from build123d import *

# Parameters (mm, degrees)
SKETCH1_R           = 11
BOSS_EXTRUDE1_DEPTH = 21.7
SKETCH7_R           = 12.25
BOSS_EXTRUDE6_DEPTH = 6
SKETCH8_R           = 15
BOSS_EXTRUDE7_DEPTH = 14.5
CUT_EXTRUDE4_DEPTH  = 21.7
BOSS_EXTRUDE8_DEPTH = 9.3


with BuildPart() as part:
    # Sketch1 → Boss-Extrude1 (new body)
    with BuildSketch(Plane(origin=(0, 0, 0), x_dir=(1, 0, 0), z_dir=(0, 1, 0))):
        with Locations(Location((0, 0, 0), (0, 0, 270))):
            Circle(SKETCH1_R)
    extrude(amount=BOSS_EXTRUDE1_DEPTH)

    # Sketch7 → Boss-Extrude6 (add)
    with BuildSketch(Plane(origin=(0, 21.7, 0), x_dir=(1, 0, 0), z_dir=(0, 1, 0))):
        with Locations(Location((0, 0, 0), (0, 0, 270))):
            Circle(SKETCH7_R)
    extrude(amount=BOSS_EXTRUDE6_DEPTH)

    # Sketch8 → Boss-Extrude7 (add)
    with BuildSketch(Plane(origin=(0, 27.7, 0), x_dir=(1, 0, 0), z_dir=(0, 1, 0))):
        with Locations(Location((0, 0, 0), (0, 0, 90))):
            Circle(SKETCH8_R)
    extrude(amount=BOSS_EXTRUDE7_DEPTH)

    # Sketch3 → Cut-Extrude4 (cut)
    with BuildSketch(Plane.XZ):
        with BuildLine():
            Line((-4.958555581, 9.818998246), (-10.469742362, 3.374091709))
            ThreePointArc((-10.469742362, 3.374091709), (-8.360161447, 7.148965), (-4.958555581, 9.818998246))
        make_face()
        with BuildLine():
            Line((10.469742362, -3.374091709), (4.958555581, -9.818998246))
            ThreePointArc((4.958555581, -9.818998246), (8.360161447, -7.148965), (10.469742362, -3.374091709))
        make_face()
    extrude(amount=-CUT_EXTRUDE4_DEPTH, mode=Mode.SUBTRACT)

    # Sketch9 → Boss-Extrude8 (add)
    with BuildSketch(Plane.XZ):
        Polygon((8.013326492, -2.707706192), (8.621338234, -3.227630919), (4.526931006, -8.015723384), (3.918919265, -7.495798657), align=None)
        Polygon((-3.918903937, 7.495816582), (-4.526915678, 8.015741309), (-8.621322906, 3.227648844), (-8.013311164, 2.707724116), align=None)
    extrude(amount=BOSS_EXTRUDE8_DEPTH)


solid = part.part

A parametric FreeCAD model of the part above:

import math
import FreeCAD as App
import Part
import Sketcher

doc = App.newDocument("Part")
body = doc.addObject("PartDesign::Body", "Body")

# Sketch on XZ plane
sketch1 = body.newObject("Sketcher::SketchObject", "Sketch")
sketch1.AttachmentSupport = (doc.getObject("XZ_Plane"), [""])
sketch1.MapMode = "FlatFace"
sketch1.addGeometry(Part.Circle(App.Vector(0, 0, 0), App.Vector(0, 0, 1), 11), False)
sketch1.addConstraint([
    Sketcher.Constraint("Coincident", 0, 3, -1, 1),
    Sketcher.Constraint("Diameter", 0, 22.0),
])
pad1 = body.newObject("PartDesign::Pad", "Pad")
pad1.Profile = sketch1
pad1.Length = 21.7
pad1.Reversed = True

# Sketch on XZ plane
sketch2 = body.newObject("Sketcher::SketchObject", "Sketch001")
sketch2.AttachmentSupport = (doc.getObject("XZ_Plane"), [""])
sketch2.MapMode = "FlatFace"
sketch2.AttachmentOffset = App.Placement(App.Vector(0, 0, -21.7), App.Rotation())
sketch2.addGeometry(Part.Circle(App.Vector(0, 0, 0), App.Vector(0, 0, 1), 12.25), False)
sketch2.addConstraint([
    Sketcher.Constraint("Coincident", 0, 3, -1, 1),
    Sketcher.Constraint("Diameter", 0, 24.5),
])
pad2 = body.newObject("PartDesign::Pad", "Pad001")
pad2.Profile = sketch2
pad2.Length = 6
pad2.Reversed = True

# Sketch on XZ plane
sketch3 = body.newObject("Sketcher::SketchObject", "Sketch002")
sketch3.AttachmentSupport = (doc.getObject("XZ_Plane"), [""])
sketch3.MapMode = "FlatFace"
sketch3.AttachmentOffset = App.Placement(App.Vector(0, 0, -27.7), App.Rotation())
sketch3.addGeometry(Part.Circle(App.Vector(0, 0, 0), App.Vector(0, 0, 1), 15), False)
sketch3.addConstraint([
    Sketcher.Constraint("Coincident", 0, 3, -1, 1),
    Sketcher.Constraint("Diameter", 0, 30.0),
])
pad3 = body.newObject("PartDesign::Pad", "Pad002")
pad3.Profile = sketch3
pad3.Length = 14.5
pad3.Reversed = True

# Sketch on XZ plane
sketch4 = body.newObject("Sketcher::SketchObject", "Sketch003")
sketch4.AttachmentSupport = (doc.getObject("XZ_Plane"), [""])
sketch4.MapMode = "FlatFace"
sketch4.addGeometry([
    Part.LineSegment(App.Vector(-10.469742, 3.374092, 0), App.Vector(-4.958556, 9.818998, 0)),
    Part.ArcOfCircle(Part.Circle(App.Vector(0, 0, 0), App.Vector(0, 0, 1), 11), math.radians(116.793596), math.radians(162.137387)),
    Part.LineSegment(App.Vector(10.469742, -3.374092, 0), App.Vector(4.958556, -9.818998, 0)),
    Part.ArcOfCircle(Part.Circle(App.Vector(0, 0, 0), App.Vector(0, 0, 1), 11), math.radians(-63.206404), math.radians(-17.862613)),
], False)
sketch4.addConstraint([
    Sketcher.Constraint("Coincident", 0, 1, 1, 2),
    Sketcher.Constraint("Coincident", 1, 1, 0, 2),
    Sketcher.Constraint("Coincident", 2, 1, 3, 2),
    Sketcher.Constraint("Coincident", 3, 1, 2, 2),
    Sketcher.Constraint("Coincident", 1, 3, -1, 1),
    Sketcher.Constraint("Coincident", 3, 3, -1, 1),
    Sketcher.Constraint("Equal", 1, 3),
    Sketcher.Constraint("Parallel", 0, 2),
    Sketcher.Constraint("Equal", 0, 2),
    Sketcher.Constraint("Radius", 1, 11.0),
    Sketcher.Constraint("DistanceY", -1, 1, 1, 1, 9.818998),
    Sketcher.Constraint("DistanceY", -1, 1, 0, 1, 3.374092),
])
pocket1 = body.newObject("PartDesign::Pocket", "Pocket")
pocket1.Profile = sketch4
pocket1.Length = 21.7

# Sketch on XZ plane
sketch5 = body.newObject("Sketcher::SketchObject", "Sketch004")
sketch5.AttachmentSupport = (doc.getObject("XZ_Plane"), [""])
sketch5.MapMode = "FlatFace"
sketch5.addGeometry([
    Part.LineSegment(App.Vector(8.621338, -3.227631, 0), App.Vector(8.013326, -2.707706, 0)),  # 0
    Part.LineSegment(App.Vector(8.013326, -2.707706, 0), App.Vector(3.918919, -7.495799, 0)),  # 1
    Part.LineSegment(App.Vector(3.918919, -7.495799, 0), App.Vector(4.526931, -8.015723, 0)),  # 2
    Part.LineSegment(App.Vector(4.526931, -8.015723, 0), App.Vector(8.621338, -3.227631, 0)),  # 3
    Part.LineSegment(App.Vector(-3.918904, 7.495817, 0), App.Vector(-4.526916, 8.015741, 0)),  # 4
    Part.LineSegment(App.Vector(-4.526916, 8.015741, 0), App.Vector(-8.621323, 3.227649, 0)),  # 5
    Part.LineSegment(App.Vector(-8.621323, 3.227649, 0), App.Vector(-8.013311, 2.707724, 0)),  # 6
    Part.LineSegment(App.Vector(-8.013311, 2.707724, 0), App.Vector(-3.918904, 7.495817, 0)),  # 7
], False)
sketch5.addConstraint([
    Sketcher.Constraint("Coincident", 0, 2, 1, 1),
    Sketcher.Constraint("Coincident", 1, 2, 2, 1),
    Sketcher.Constraint("Coincident", 2, 2, 3, 1),
    Sketcher.Constraint("Coincident", 3, 2, 0, 1),
    Sketcher.Constraint("Coincident", 4, 2, 5, 1),
    Sketcher.Constraint("Coincident", 5, 2, 6, 1),
    Sketcher.Constraint("Coincident", 6, 2, 7, 1),
    Sketcher.Constraint("Coincident", 7, 2, 4, 1),
    Sketcher.Constraint("Perpendicular", 0, 1),
    Sketcher.Constraint("Perpendicular", 1, 2),
    Sketcher.Constraint("Perpendicular", 2, 3),
    Sketcher.Constraint("Perpendicular", 3, 4),
    Sketcher.Constraint("Perpendicular", 4, 5),
    Sketcher.Constraint("Perpendicular", 5, 6),
    Sketcher.Constraint("Perpendicular", 6, 7),
    Sketcher.Constraint("Equal", 2, 4),
    Sketcher.Constraint("Equal", 3, 5),
    Sketcher.Constraint("Distance", 0, 0.8),
    Sketcher.Constraint("Distance", 1, 6.3),
    Sketcher.Constraint("DistanceY", 1, 2, -1, 1, 7.495799),
    Sketcher.Constraint("DistanceX", -1, 1, 1, 2, 3.918919),
    Sketcher.Constraint("DistanceX", -1, 1, 2, 2, 4.526931),
    Sketcher.Constraint("DistanceY", -1, 1, 4, 2, 8.015741),
    Sketcher.Constraint("DistanceX", 6, 2, -1, 1, 8.013311),
])
pad4 = body.newObject("PartDesign::Pad", "Pad003")
pad4.Profile = sketch5
pad4.Length = 9.3

doc.recompute()
